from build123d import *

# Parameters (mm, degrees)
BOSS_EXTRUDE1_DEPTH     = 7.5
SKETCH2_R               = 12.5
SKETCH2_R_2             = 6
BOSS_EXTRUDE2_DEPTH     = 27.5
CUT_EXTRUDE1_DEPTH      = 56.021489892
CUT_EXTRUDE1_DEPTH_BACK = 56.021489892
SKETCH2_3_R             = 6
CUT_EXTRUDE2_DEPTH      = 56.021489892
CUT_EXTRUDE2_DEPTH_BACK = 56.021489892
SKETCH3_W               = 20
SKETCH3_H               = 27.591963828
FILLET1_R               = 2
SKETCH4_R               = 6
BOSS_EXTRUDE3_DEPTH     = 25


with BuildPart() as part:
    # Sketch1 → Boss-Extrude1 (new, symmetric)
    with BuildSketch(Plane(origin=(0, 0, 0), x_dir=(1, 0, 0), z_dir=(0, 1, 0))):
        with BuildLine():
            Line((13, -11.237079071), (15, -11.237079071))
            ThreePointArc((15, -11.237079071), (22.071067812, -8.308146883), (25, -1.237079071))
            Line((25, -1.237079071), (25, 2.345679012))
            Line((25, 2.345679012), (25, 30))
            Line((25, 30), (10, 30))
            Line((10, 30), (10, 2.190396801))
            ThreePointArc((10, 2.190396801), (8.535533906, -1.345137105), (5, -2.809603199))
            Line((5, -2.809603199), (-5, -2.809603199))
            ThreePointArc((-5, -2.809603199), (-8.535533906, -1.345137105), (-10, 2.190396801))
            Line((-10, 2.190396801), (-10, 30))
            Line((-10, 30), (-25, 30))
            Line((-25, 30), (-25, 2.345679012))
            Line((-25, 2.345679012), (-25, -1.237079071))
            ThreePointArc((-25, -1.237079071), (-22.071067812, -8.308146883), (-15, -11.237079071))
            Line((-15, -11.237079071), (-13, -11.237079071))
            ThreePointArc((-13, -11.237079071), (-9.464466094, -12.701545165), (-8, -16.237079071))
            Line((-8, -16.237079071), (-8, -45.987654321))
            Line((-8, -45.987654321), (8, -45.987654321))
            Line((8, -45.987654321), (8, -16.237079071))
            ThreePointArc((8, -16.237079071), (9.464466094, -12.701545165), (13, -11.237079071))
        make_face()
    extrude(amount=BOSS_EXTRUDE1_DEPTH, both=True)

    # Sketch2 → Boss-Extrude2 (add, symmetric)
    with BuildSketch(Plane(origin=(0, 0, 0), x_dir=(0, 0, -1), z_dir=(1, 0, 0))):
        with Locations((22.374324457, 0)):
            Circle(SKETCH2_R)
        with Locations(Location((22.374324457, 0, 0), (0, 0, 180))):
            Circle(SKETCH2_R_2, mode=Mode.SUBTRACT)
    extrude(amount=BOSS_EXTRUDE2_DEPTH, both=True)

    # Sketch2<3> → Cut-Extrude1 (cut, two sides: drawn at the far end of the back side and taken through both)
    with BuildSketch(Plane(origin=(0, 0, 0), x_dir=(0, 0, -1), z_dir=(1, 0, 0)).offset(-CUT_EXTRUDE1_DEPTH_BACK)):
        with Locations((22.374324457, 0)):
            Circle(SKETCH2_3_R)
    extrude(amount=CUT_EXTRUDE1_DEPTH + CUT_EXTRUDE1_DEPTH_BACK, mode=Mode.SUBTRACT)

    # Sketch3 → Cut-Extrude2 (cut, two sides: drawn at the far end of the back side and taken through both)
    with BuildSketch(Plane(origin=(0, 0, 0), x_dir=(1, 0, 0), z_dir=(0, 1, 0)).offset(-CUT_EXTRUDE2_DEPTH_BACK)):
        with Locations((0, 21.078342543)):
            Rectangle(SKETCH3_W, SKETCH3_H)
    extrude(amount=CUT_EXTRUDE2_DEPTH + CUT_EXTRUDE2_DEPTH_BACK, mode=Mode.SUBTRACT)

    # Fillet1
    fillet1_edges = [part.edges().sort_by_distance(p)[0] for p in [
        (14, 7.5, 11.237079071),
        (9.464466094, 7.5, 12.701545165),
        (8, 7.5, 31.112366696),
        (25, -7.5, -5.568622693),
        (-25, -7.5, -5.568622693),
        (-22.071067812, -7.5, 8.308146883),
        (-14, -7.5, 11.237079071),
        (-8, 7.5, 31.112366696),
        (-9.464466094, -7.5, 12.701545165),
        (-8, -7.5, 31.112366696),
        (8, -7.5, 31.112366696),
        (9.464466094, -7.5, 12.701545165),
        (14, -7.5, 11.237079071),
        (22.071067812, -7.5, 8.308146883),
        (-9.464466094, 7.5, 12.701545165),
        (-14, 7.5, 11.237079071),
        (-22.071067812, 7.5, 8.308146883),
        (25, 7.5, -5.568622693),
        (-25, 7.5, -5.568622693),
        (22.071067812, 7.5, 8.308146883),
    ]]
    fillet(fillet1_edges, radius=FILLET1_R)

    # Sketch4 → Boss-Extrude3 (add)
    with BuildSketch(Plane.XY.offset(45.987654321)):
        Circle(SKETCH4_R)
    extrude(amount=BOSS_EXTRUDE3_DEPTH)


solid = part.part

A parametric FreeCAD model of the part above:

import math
import FreeCAD as App
import Part
import Sketcher

V = App.Vector


def edges_at(feature, points):
    """Names of the edges that pass closest to the given points."""
    edges = feature.Shape.Edges
    near = lambda p: min(range(len(edges)), key=lambda i: edges[i].distToShape(Part.Vertex(*p))[0])
    return sorted({f"Edge{near(p) + 1}" for p in points})

doc = App.newDocument("Part")
body = doc.addObject("PartDesign::Body", "Body")

sketch1 = doc.addObject("Sketcher::SketchObject", "Sketch")
body.addObject(sketch1)
sketch1.AttachmentSupport = (doc.XZ_Plane, [""])
sketch1.MapMode = "FlatFace"
sketch1.addGeometry(Part.LineSegment(V(13, 11.2, 0), V(15, 11.2, 0)), False)
sketch1.addGeometry(Part.ArcOfCircle(Part.Circle(V(15, 1.2, 0), V(0, 0, 1), 10), math.radians(0), math.radians(90)), False)
sketch1.addGeometry(Part.LineSegment(V(25, 1.2, 0), V(25, -30, 0)), False)
sketch1.addGeometry(Part.LineSegment(V(25, -30, 0), V(10, -30, 0)), False)
sketch1.addGeometry(Part.LineSegment(V(10, -30, 0), V(10, -2.2, 0)), False)
sketch1.addGeometry(Part.ArcOfCircle(Part.Circle(V(5, -2.2, 0), V(0, 0, 1), 5), math.radians(0), math.radians(90)), False)
sketch1.addGeometry(Part.LineSegment(V(5, 2.8, 0), V(-5, 2.8, 0)), False)
sketch1.addGeometry(Part.ArcOfCircle(Part.Circle(V(-5, -2.2, 0), V(0, 0, 1), 5), math.radians(90), math.radians(180)), False)
sketch1.addGeometry(Part.LineSegment(V(-10, -2.2, 0), V(-10, -30, 0)), False)
sketch1.addGeometry(Part.LineSegment(V(-10, -30, 0), V(-25, -30, 0)), False)
sketch1.addGeometry(Part.LineSegment(V(-25, -30, 0), V(-25, 1.2, 0)), False)
sketch1.addGeometry(Part.ArcOfCircle(Part.Circle(V(-15, 1.2, 0), V(0, 0, 1), 10), math.radians(90), math.radians(180)), False)
sketch1.addGeometry(Part.LineSegment(V(-15, 11.2, 0), V(-13, 11.2, 0)), False)
sketch1.addGeometry(Part.ArcOfCircle(Part.Circle(V(-13, 16.2, 0), V(0, 0, 1), 5), math.radians(-90), math.radians(0)), False)
sketch1.addGeometry(Part.LineSegment(V(-8, 16.2, 0), V(-8, 46, 0)), False)
sketch1.addGeometry(Part.LineSegment(V(-8, 46, 0), V(8, 46, 0)), False)
sketch1.addGeometry(Part.LineSegment(V(8, 46, 0), V(8, 16.2, 0)), False)
sketch1.addGeometry(Part.ArcOfCircle(Part.Circle(V(13, 16.2, 0), V(0, 0, 1), 5), math.radians(180), math.radians(270)), False)
sketch1.addConstraint(Sketcher.Constraint("Tangent", 0, 2, 1, 2))
sketch1.addConstraint(Sketcher.Constraint("Tangent", 1, 1, 2, 1))
sketch1.addConstraint(Sketcher.Constraint("Coincident", 2, 2, 3, 1))
sketch1.addConstraint(Sketcher.Constraint("Coincident", 3, 2, 4, 1))
sketch1.addConstraint(Sketcher.Constraint("Tangent", 4, 2, 5, 1))
sketch1.addConstraint(Sketcher.Constraint("Tangent", 5, 2, 6, 1))
sketch1.addConstraint(Sketcher.Constraint("Tangent", 6, 2, 7, 1))
sketch1.addConstraint(Sketcher.Constraint("Tangent", 7, 2, 8, 1))
sketch1.addConstraint(Sketcher.Constraint("Coincident", 8, 2, 9, 1))
sketch1.addConstraint(Sketcher.Constraint("Coincident", 9, 2, 10, 1))
sketch1.addConstraint(Sketcher.Constraint("Tangent", 10, 2, 11, 2))
sketch1.addConstraint(Sketcher.Constraint("Tangent", 11, 1, 12, 1))
sketch1.addConstraint(Sketcher.Constraint("Tangent", 12, 2, 13, 1))
sketch1.addConstraint(Sketcher.Constraint("Tangent", 13, 2, 14, 1))
sketch1.addConstraint(Sketcher.Constraint("Coincident", 14, 2, 15, 1))
sketch1.addConstraint(Sketcher.Constraint("Coincident", 15, 2, 16, 1))
sketch1.addConstraint(Sketcher.Constraint("Tangent", 16, 2, 17, 1))
sketch1.addConstraint(Sketcher.Constraint("Tangent", 17, 2, 0, 1))
sketch1.addConstraint(Sketcher.Constraint("Horizontal", 0))
sketch1.addConstraint(Sketcher.Constraint("Vertical", 2))
sketch1.addConstraint(Sketcher.Constraint("Horizontal", 3))
sketch1.addConstraint(Sketcher.Constraint("Vertical", 4))
sketch1.addConstraint(Sketcher.Constraint("Horizontal", 6))
sketch1.addConstraint(Sketcher.Constraint("Vertical", 8))
sketch1.addConstraint(Sketcher.Constraint("Horizontal", 9))
sketch1.addConstraint(Sketcher.Constraint("Vertical", 10))
sketch1.addConstraint(Sketcher.Constraint("Horizontal", 12))
sketch1.addConstraint(Sketcher.Constraint("Vertical", 14))
sketch1.addConstraint(Sketcher.Constraint("Horizontal", 15))
sketch1.addConstraint(Sketcher.Constraint("Vertical", 16))
sketch1.addConstraint(Sketcher.Constraint("Equal", 5, 7))
sketch1.addConstraint(Sketcher.Constraint("Equal", 1, 11))
sketch1.addConstraint(Sketcher.Constraint("Equal", 7, 13))
sketch1.addConstraint(Sketcher.Constraint("Equal", 13, 17))
sketch1.addConstraint(Sketcher.Constraint("Symmetric", 1, 3, 11, 3, -2))
sketch1.addConstraint(Sketcher.Constraint("Symmetric", 3, 2, 8, 2, -2))
sketch1.addConstraint(Sketcher.Constraint("Equal", 0, 12))
sketch1.addConstraint(Sketcher.Constraint("Radius", 1, 10.0))
sketch1.addConstraint(Sketcher.Constraint("Radius", 5, 5.0))
sketch1.addConstraint(Sketcher.Constraint("DistanceX", 0, 1, 0, 2, 2.0))
sketch1.addConstraint(Sketcher.Constraint("DistanceX", 3, 2, 3, 1, 15.0))
sketch1.addConstraint(Sketcher.Constraint("DistanceX", 6, 2, 6, 1, 10.0))
sketch1.addConstraint(Sketcher.Constraint("DistanceY", 2, 2, -1, 1, 30.0))
sketch1.addConstraint(Sketcher.Constraint("DistanceY", 2, 2, 2, 1, 31.237079))
sketch1.addConstraint(Sketcher.Constraint("DistanceY", 4, 1, 4, 2, 27.809603))
sketch1.addConstraint(Sketcher.Constraint("DistanceY", 14, 1, 14, 2, 29.750575))
pad1 = doc.addObject("PartDesign::Pad", "Pad")
body.addObject(pad1)
pad1.Profile = sketch1
pad1.Length = 15
pad1.Midplane = True

sketch2 = doc.addObject("Sketcher::SketchObject", "Sketch001")
body.addObject(sketch2)
sketch2.AttachmentSupport = (doc.YZ_Plane, [""])
sketch2.MapMode = "FlatFace"
sketch2.addGeometry(Part.Circle(V(0, -22, 0), V(0, 0, 1), 12), False)
sketch2.addGeometry(Part.Circle(V(0, -22, 0), V(0, 0, 1), 6), False)
sketch2.addConstraint(Sketcher.Constraint("Coincident", 1, 3, 0, 3))
sketch2.addConstraint(Sketcher.Constraint("PointOnObject", 0, 3, -2))
sketch2.addConstraint(Sketcher.Constraint("Diameter", 0, 25.0))
sketch2.addConstraint(Sketcher.Constraint("Diameter", 1, 12.0))
sketch2.addConstraint(Sketcher.Constraint("DistanceY", 0, 3, -1, 1, 22.374324))
pad2 = doc.addObject("PartDesign::Pad", "Pad001")
body.addObject(pad2)
pad2.Profile = sketch2
pad2.Length = 55
pad2.Midplane = True

sketch3 = doc.addObject("Sketcher::SketchObject", "Sketch002")
body.addObject(sketch3)
sketch3.AttachmentSupport = (doc.YZ_Plane, [""])
sketch3.MapMode = "FlatFace"
sketch3.addGeometry(Part.Circle(V(0, -22, 0), V(0, 0, 1), 6), False)
sketch3.addConstraint(Sketcher.Constraint("PointOnObject", 0, 3, -2))
sketch3.addConstraint(Sketcher.Constraint("Diameter", 0, 12.0))
sketch3.addConstraint(Sketcher.Constraint("DistanceY", 0, 3, -1, 1, 22.374324))
pocket1 = doc.addObject("PartDesign::Pocket", "Pocket")
body.addObject(pocket1)
pocket1.Profile = sketch3
pocket1.Type = "ThroughAll"
pocket1.Midplane = True

sketch4 = doc.addObject("Sketcher::SketchObject", "Sketch003")
body.addObject(sketch4)
sketch4.AttachmentSupport = (doc.XZ_Plane, [""])
sketch4.MapMode = "FlatFace"
sketch4.addGeometry(Part.LineSegment(V(-10, -35, 0), V(-10, -7, 0)), False)
sketch4.addGeometry(Part.LineSegment(V(-10, -7, 0), V(10, -7, 0)), False)
sketch4.addGeometry(Part.LineSegment(V(10, -7, 0), V(10, -35, 0)), False)
sketch4.addGeometry(Part.LineSegment(V(10, -35, 0), V(-10, -35, 0)), False)
sketch4.addConstraint(Sketcher.Constraint("Coincident", 0, 2, 1, 1))
sketch4.addConstraint(Sketcher.Constraint("Coincident", 1, 2, 2, 1))
sketch4.addConstraint(Sketcher.Constraint("Coincident", 2, 2, 3, 1))
sketch4.addConstraint(Sketcher.Constraint("Coincident", 3, 2, 0, 1))
sketch4.addConstraint(Sketcher.Constraint("Vertical", 0))
sketch4.addConstraint(Sketcher.Constraint("Horizontal", 1))
sketch4.addConstraint(Sketcher.Constraint("Vertical", 2))
sketch4.addConstraint(Sketcher.Constraint("Horizontal", 3))
sketch4.addConstraint(Sketcher.Constraint("DistanceX", 1, 1, 1, 2, 20.0))
sketch4.addConstraint(Sketcher.Constraint("DistanceX", 0, 2, -1, 1, 10.0))
sketch4.addConstraint(Sketcher.Constraint("DistanceY", 0, 1, 0, 2, 27.591964))
sketch4.addConstraint(Sketcher.Constraint("DistanceY", 0, 2, -1, 1, 7.282361))
pocket2 = doc.addObject("PartDesign::Pocket", "Pocket001")
body.addObject(pocket2)
pocket2.Profile = sketch4
pocket2.Type = "ThroughAll"
pocket2.Midplane = True
doc.recompute()

fillet = doc.addObject("PartDesign::Fillet", "Fillet")
body.addObject(fillet)
fillet.Base = (pocket2, edges_at(pocket2, [
    (14, 7.5, 11.237),
    (9.464, 7.5, 12.702),
    (8, 7.5, 31.112),
    (25, -7.5, -5.569),
    (-25, -7.5, -5.569),
    (-22.071, -7.5, 8.308),
    (-14, -7.5, 11.237),
    (-8, 7.5, 31.112),
    (-9.464, -7.5, 12.702),
    (-8, -7.5, 31.112),
    (8, -7.5, 31.112),
    (9.464, -7.5, 12.702),
    (14, -7.5, 11.237),
    (22.071, -7.5, 8.308),
    (-9.464, 7.5, 12.702),
    (-14, 7.5, 11.237),
    (-22.071, 7.5, 8.308),
    (25, 7.5, -5.569),
    (-25, 7.5, -5.569),
    (22.071, 7.5, 8.308),
]))
fillet.Radius = 2

sketch5 = doc.addObject("Sketcher::SketchObject", "Sketch004")
body.addObject(sketch5)
sketch5.AttachmentSupport = (doc.XY_Plane, [""])
sketch5.MapMode = "FlatFace"
sketch5.AttachmentOffset = App.Placement(V(0, 0, 45.987654), App.Rotation())
sketch5.addGeometry(Part.Circle(V(0, 0, 0), V(0, 0, 1), 6), False)
sketch5.addConstraint(Sketcher.Constraint("Coincident", 0, 3, -1, 1))
sketch5.addConstraint(Sketcher.Constraint("Diameter", 0, 12.0))
pad3 = doc.addObject("PartDesign::Pad", "Pad002")
body.addObject(pad3)
pad3.Profile = sketch5
pad3.Length = 25

doc.recompute()
